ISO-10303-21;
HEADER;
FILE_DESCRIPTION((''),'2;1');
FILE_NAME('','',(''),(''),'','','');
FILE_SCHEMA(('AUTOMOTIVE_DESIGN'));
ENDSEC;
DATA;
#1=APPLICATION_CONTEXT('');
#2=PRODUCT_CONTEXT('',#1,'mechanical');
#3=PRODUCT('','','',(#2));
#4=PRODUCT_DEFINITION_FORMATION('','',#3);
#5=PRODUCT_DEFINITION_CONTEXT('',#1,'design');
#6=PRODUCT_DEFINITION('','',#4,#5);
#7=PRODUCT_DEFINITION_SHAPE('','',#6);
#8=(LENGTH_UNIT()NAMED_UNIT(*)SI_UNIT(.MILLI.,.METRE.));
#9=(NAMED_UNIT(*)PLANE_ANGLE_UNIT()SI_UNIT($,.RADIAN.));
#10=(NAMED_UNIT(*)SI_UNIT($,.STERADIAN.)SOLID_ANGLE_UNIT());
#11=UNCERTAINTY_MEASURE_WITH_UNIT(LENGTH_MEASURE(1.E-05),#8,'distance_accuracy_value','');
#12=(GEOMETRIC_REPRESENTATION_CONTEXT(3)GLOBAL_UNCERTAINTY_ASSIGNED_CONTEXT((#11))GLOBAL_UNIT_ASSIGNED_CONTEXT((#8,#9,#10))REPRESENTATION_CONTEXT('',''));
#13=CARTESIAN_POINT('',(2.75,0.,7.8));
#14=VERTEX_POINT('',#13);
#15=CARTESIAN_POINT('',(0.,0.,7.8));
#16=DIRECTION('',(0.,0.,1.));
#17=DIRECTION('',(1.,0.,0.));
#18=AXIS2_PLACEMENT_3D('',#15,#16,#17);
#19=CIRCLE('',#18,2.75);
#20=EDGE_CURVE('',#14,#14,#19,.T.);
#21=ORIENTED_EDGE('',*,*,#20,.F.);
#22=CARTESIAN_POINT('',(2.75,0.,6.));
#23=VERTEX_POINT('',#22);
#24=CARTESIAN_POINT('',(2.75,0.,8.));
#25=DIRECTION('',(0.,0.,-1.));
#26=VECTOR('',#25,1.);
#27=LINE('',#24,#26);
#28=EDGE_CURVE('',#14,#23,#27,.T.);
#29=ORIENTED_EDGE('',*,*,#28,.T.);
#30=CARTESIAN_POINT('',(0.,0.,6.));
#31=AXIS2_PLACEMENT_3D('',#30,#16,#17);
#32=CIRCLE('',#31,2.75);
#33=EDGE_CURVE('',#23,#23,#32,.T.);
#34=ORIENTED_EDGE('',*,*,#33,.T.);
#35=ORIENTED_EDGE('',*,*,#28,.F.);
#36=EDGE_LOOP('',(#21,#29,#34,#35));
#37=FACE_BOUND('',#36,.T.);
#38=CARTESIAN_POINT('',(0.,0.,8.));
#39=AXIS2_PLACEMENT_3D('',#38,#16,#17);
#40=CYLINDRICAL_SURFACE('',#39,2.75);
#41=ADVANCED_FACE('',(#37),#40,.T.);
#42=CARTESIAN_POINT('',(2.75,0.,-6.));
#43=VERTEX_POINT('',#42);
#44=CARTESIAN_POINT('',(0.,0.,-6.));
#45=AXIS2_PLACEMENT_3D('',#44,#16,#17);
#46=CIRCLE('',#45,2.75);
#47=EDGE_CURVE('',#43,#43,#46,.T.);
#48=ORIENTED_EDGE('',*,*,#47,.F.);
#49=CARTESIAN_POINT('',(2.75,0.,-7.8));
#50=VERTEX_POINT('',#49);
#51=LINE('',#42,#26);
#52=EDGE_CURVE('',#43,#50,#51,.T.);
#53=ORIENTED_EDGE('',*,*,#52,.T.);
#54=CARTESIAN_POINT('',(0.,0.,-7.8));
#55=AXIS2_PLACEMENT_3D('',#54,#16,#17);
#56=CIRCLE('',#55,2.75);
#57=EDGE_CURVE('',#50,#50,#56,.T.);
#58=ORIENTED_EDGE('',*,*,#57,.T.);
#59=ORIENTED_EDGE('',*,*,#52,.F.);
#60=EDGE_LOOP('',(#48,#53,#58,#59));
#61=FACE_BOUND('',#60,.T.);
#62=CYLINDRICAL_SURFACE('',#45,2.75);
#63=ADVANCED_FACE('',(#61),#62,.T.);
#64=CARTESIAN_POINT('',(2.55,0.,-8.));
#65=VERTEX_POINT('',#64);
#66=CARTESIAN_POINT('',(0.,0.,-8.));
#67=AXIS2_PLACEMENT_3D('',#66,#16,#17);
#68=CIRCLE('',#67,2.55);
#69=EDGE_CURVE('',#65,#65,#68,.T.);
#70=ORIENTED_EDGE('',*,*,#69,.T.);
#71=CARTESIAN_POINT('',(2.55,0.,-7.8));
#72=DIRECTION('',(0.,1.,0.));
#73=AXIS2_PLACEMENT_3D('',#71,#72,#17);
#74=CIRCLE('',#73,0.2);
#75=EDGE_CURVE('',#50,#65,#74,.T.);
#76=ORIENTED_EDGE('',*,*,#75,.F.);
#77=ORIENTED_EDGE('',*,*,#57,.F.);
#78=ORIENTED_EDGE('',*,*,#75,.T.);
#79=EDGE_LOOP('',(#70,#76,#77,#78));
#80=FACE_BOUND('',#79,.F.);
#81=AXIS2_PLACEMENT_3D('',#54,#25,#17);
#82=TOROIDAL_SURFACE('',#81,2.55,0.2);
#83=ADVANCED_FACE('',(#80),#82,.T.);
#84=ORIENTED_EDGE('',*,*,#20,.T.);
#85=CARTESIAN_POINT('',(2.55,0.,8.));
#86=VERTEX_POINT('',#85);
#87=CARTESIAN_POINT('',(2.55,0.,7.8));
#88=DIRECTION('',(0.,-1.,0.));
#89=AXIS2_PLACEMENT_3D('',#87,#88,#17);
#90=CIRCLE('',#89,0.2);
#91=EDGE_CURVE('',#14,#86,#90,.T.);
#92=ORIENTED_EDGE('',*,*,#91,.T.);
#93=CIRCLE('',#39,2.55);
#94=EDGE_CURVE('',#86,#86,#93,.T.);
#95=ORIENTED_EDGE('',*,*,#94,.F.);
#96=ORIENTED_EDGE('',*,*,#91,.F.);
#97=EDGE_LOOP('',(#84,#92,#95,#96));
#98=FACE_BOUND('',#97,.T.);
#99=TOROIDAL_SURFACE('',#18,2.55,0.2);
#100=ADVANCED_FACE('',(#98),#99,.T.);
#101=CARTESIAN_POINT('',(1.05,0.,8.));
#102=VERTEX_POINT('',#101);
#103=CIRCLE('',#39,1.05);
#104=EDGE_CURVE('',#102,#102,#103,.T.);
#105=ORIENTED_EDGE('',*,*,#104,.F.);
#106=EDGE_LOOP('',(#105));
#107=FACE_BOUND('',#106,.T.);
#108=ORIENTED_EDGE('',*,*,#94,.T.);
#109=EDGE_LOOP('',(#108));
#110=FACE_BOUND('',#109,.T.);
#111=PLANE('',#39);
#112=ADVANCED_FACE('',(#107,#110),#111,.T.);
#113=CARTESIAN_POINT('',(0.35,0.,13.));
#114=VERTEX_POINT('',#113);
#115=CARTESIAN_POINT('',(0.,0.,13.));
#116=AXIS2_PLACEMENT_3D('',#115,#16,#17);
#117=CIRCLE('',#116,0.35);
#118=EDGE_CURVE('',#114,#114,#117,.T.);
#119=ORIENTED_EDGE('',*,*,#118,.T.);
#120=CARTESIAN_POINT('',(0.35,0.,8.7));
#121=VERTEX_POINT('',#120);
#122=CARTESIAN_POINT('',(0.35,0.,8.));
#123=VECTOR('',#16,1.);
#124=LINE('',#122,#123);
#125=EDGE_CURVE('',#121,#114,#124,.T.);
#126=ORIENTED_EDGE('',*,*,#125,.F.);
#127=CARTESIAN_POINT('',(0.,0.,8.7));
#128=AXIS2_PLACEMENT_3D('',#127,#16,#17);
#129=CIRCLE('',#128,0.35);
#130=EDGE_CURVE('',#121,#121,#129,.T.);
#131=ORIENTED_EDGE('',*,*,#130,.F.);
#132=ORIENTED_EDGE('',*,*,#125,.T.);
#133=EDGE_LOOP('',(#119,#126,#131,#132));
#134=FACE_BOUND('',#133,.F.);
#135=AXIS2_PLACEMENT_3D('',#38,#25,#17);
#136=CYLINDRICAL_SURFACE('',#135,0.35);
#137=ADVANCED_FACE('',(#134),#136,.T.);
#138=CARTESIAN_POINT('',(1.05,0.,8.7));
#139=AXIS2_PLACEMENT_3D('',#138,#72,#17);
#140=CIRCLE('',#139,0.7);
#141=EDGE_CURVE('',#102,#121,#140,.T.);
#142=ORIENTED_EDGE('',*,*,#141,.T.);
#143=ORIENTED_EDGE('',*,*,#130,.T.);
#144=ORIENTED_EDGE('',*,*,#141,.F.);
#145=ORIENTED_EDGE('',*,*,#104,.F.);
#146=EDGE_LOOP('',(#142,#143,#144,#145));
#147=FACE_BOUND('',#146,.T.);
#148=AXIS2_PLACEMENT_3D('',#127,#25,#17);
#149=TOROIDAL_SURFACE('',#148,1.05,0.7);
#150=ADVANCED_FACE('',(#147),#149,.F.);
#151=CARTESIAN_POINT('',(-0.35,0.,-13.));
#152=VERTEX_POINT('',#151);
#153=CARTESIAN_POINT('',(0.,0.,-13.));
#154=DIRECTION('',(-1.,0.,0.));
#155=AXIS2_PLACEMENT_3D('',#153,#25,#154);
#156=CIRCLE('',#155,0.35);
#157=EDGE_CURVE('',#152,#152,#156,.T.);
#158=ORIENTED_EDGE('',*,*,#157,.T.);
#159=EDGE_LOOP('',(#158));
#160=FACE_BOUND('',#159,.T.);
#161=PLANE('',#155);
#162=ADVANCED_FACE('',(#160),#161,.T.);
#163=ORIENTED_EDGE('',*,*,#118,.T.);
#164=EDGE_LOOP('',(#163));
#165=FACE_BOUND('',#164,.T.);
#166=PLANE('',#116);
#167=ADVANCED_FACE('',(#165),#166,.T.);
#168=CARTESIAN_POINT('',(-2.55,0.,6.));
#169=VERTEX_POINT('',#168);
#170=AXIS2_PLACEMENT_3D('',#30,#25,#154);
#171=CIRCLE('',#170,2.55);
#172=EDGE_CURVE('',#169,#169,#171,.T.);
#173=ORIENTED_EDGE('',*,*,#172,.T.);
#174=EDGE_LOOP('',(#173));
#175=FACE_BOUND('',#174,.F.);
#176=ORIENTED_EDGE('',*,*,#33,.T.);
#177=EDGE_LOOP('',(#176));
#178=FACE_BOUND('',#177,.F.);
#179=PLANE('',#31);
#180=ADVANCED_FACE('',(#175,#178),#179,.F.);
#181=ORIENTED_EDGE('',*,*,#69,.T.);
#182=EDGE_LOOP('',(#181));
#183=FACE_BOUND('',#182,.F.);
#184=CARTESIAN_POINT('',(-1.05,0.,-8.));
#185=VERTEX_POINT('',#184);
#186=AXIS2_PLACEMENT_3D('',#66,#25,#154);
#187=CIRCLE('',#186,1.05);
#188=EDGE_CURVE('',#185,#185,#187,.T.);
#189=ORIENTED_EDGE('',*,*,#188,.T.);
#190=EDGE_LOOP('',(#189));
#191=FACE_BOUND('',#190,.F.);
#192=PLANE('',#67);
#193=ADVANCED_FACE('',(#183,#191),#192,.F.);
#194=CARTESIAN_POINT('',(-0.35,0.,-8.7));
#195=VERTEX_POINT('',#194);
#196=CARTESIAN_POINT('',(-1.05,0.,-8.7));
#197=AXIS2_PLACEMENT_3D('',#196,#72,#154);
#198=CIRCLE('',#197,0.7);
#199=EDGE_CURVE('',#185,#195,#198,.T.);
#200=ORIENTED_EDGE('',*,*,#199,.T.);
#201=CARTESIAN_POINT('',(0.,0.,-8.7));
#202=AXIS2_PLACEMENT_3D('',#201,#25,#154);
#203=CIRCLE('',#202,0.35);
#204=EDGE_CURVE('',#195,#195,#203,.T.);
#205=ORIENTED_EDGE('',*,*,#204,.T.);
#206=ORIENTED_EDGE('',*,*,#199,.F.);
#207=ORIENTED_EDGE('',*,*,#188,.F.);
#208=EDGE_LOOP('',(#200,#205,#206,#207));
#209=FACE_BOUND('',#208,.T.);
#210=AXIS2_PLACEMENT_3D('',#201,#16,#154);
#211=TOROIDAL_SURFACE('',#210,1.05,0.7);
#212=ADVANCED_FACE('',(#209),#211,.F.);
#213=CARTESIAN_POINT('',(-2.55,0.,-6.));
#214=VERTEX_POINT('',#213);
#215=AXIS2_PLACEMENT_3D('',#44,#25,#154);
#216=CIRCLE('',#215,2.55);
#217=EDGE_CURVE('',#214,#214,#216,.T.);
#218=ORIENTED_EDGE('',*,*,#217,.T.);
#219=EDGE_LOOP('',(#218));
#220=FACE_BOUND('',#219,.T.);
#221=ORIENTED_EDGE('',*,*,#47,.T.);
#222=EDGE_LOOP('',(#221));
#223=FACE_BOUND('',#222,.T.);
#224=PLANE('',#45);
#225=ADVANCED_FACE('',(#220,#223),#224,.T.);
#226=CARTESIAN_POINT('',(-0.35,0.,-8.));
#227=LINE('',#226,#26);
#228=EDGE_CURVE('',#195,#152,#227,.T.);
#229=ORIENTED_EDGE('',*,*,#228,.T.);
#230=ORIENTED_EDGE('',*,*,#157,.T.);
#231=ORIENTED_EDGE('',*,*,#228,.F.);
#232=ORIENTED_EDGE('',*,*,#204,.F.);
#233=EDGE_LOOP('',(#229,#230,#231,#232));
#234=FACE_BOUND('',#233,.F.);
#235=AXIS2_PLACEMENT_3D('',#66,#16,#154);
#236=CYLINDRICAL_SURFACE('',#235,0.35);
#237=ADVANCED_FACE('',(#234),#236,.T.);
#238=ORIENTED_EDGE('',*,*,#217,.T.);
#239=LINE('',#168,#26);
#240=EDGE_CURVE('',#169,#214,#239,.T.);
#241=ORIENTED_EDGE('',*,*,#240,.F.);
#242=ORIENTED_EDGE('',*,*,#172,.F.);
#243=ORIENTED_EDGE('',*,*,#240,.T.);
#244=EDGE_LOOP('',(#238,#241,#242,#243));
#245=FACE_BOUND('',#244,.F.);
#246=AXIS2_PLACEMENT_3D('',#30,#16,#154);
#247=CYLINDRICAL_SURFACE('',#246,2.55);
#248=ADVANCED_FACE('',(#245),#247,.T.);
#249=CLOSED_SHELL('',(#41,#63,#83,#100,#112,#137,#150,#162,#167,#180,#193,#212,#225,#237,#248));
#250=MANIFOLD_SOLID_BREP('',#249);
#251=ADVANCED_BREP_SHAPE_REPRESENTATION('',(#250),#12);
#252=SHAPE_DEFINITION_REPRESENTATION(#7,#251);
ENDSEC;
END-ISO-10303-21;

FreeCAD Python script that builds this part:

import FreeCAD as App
import Part
import Sketcher

V = App.Vector
Q = App.Units.Quantity


def edges_at(feature, points):
    """Names of the edges that pass closest to the given points."""
    edges = feature.Shape.Edges
    near = lambda p: min(range(len(edges)), key=lambda i: edges[i].distToShape(Part.Vertex(*p))[0])
    return sorted({f"Edge{near(p) + 1}" for p in points})

doc = App.newDocument("Part")
body = doc.addObject("PartDesign::Body", "Body")

# Sketch on XY plane
sketch1 = doc.addObject("Sketcher::SketchObject", "Sketch")
body.addObject(sketch1)
sketch1.AttachmentSupport = (doc.XY_Plane, [""])
sketch1.MapMode = "FlatFace"
sketch1.AttachmentOffset = App.Placement(V(0, 0, 8), App.Rotation())
sketch1.addGeometry(Part.Circle(V(0, 0, 0), V(0, 0, 1), 2.75), False)
sketch1.addConstraint([
    Sketcher.Constraint("Coincident", 0, 3, -1, 1),
    Sketcher.Constraint("Diameter", 0, Q("5.5 mm")),
])
pad1 = doc.addObject("PartDesign::Pad", "Pad")
body.addObject(pad1)
pad1.Profile = sketch1
pad1.Length = 2
pad1.Reversed = True

# Sketch on XY plane
sketch2 = doc.addObject("Sketcher::SketchObject", "Sketch001")
body.addObject(sketch2)
sketch2.AttachmentSupport = (doc.XY_Plane, [""])
sketch2.MapMode = "FlatFace"
sketch2.AttachmentOffset = App.Placement(V(0, 0, 6), App.Rotation())
sketch2.addGeometry(Part.Circle(V(0, 0, 0), V(0, 0, 1), 2.55), False)
sketch2.addConstraint([
    Sketcher.Constraint("Coincident", 0, 3, -1, 1),
    Sketcher.Constraint("Diameter", 0, Q("5.1 mm")),
])
pad2 = doc.addObject("PartDesign::Pad", "Pad001")
body.addObject(pad2)
pad2.Profile = sketch2
pad2.Length = 12
pad2.Reversed = True

# Sketch on XY plane
sketch3 = doc.addObject("Sketcher::SketchObject", "Sketch002")
body.addObject(sketch3)
sketch3.AttachmentSupport = (doc.XY_Plane, [""])
sketch3.MapMode = "FlatFace"
sketch3.AttachmentOffset = App.Placement(V(0, 0, -6), App.Rotation())
sketch3.addGeometry(Part.Circle(V(0, 0, 0), V(0, 0, 1), 2.75), False)
sketch3.addConstraint([
    Sketcher.Constraint("Coincident", 0, 3, -1, 1),
    Sketcher.Constraint("Diameter", 0, Q("5.5 mm")),
])
pad3 = doc.addObject("PartDesign::Pad", "Pad002")
body.addObject(pad3)
pad3.Profile = sketch3
pad3.Length = 2
pad3.Reversed = True

# Sketch on XY plane
sketch4 = doc.addObject("Sketcher::SketchObject", "Sketch003")
body.addObject(sketch4)
sketch4.AttachmentSupport = (doc.XY_Plane, [""])
sketch4.MapMode = "FlatFace"
sketch4.AttachmentOffset = App.Placement(V(0, 0, 8), App.Rotation())
sketch4.addGeometry(Part.Circle(V(0, 0, 0), V(0, 0, 1), 0.35), False)
sketch4.addConstraint([
    Sketcher.Constraint("Coincident", 0, 3, -1, 1),
    Sketcher.Constraint("Diameter", 0, Q("0.7 mm")),
])
pad4 = doc.addObject("PartDesign::Pad", "Pad003")
body.addObject(pad4)
pad4.Profile = sketch4
pad4.Length = 5

# Sketch on XY plane
sketch5 = doc.addObject("Sketcher::SketchObject", "Sketch004")
body.addObject(sketch5)
sketch5.AttachmentSupport = (doc.XY_Plane, [""])
sketch5.MapMode = "FlatFace"
sketch5.AttachmentOffset = App.Placement(V(0, 0, -8), App.Rotation())
sketch5.addGeometry(Part.Circle(V(0, 0, 0), V(0, 0, 1), 0.35), False)
sketch5.addConstraint([
    Sketcher.Constraint("Coincident", 0, 3, -1, 1),
    Sketcher.Constraint("Diameter", 0, Q("0.7 mm")),
])
pad5 = doc.addObject("PartDesign::Pad", "Pad004")
body.addObject(pad5)
pad5.Profile = sketch5
pad5.Length = 5
pad5.Reversed = True
doc.recompute()

fillet = doc.addObject("PartDesign::Fillet", "Fillet")
body.addObject(fillet)
fillet.Base = (pad5, edges_at(pad5, [(-2.75, 0, 8), (-2.75, 0, -8)]))
fillet.Radius = 0.2
doc.recompute()

fillet2 = doc.addObject("PartDesign::Fillet", "Fillet001")
body.addObject(fillet2)
fillet2.Base = (fillet, edges_at(fillet, [(-0.35, 0, 8), (0.35, 0, -8)]))
fillet2.Radius = 0.7

doc.recompute()
